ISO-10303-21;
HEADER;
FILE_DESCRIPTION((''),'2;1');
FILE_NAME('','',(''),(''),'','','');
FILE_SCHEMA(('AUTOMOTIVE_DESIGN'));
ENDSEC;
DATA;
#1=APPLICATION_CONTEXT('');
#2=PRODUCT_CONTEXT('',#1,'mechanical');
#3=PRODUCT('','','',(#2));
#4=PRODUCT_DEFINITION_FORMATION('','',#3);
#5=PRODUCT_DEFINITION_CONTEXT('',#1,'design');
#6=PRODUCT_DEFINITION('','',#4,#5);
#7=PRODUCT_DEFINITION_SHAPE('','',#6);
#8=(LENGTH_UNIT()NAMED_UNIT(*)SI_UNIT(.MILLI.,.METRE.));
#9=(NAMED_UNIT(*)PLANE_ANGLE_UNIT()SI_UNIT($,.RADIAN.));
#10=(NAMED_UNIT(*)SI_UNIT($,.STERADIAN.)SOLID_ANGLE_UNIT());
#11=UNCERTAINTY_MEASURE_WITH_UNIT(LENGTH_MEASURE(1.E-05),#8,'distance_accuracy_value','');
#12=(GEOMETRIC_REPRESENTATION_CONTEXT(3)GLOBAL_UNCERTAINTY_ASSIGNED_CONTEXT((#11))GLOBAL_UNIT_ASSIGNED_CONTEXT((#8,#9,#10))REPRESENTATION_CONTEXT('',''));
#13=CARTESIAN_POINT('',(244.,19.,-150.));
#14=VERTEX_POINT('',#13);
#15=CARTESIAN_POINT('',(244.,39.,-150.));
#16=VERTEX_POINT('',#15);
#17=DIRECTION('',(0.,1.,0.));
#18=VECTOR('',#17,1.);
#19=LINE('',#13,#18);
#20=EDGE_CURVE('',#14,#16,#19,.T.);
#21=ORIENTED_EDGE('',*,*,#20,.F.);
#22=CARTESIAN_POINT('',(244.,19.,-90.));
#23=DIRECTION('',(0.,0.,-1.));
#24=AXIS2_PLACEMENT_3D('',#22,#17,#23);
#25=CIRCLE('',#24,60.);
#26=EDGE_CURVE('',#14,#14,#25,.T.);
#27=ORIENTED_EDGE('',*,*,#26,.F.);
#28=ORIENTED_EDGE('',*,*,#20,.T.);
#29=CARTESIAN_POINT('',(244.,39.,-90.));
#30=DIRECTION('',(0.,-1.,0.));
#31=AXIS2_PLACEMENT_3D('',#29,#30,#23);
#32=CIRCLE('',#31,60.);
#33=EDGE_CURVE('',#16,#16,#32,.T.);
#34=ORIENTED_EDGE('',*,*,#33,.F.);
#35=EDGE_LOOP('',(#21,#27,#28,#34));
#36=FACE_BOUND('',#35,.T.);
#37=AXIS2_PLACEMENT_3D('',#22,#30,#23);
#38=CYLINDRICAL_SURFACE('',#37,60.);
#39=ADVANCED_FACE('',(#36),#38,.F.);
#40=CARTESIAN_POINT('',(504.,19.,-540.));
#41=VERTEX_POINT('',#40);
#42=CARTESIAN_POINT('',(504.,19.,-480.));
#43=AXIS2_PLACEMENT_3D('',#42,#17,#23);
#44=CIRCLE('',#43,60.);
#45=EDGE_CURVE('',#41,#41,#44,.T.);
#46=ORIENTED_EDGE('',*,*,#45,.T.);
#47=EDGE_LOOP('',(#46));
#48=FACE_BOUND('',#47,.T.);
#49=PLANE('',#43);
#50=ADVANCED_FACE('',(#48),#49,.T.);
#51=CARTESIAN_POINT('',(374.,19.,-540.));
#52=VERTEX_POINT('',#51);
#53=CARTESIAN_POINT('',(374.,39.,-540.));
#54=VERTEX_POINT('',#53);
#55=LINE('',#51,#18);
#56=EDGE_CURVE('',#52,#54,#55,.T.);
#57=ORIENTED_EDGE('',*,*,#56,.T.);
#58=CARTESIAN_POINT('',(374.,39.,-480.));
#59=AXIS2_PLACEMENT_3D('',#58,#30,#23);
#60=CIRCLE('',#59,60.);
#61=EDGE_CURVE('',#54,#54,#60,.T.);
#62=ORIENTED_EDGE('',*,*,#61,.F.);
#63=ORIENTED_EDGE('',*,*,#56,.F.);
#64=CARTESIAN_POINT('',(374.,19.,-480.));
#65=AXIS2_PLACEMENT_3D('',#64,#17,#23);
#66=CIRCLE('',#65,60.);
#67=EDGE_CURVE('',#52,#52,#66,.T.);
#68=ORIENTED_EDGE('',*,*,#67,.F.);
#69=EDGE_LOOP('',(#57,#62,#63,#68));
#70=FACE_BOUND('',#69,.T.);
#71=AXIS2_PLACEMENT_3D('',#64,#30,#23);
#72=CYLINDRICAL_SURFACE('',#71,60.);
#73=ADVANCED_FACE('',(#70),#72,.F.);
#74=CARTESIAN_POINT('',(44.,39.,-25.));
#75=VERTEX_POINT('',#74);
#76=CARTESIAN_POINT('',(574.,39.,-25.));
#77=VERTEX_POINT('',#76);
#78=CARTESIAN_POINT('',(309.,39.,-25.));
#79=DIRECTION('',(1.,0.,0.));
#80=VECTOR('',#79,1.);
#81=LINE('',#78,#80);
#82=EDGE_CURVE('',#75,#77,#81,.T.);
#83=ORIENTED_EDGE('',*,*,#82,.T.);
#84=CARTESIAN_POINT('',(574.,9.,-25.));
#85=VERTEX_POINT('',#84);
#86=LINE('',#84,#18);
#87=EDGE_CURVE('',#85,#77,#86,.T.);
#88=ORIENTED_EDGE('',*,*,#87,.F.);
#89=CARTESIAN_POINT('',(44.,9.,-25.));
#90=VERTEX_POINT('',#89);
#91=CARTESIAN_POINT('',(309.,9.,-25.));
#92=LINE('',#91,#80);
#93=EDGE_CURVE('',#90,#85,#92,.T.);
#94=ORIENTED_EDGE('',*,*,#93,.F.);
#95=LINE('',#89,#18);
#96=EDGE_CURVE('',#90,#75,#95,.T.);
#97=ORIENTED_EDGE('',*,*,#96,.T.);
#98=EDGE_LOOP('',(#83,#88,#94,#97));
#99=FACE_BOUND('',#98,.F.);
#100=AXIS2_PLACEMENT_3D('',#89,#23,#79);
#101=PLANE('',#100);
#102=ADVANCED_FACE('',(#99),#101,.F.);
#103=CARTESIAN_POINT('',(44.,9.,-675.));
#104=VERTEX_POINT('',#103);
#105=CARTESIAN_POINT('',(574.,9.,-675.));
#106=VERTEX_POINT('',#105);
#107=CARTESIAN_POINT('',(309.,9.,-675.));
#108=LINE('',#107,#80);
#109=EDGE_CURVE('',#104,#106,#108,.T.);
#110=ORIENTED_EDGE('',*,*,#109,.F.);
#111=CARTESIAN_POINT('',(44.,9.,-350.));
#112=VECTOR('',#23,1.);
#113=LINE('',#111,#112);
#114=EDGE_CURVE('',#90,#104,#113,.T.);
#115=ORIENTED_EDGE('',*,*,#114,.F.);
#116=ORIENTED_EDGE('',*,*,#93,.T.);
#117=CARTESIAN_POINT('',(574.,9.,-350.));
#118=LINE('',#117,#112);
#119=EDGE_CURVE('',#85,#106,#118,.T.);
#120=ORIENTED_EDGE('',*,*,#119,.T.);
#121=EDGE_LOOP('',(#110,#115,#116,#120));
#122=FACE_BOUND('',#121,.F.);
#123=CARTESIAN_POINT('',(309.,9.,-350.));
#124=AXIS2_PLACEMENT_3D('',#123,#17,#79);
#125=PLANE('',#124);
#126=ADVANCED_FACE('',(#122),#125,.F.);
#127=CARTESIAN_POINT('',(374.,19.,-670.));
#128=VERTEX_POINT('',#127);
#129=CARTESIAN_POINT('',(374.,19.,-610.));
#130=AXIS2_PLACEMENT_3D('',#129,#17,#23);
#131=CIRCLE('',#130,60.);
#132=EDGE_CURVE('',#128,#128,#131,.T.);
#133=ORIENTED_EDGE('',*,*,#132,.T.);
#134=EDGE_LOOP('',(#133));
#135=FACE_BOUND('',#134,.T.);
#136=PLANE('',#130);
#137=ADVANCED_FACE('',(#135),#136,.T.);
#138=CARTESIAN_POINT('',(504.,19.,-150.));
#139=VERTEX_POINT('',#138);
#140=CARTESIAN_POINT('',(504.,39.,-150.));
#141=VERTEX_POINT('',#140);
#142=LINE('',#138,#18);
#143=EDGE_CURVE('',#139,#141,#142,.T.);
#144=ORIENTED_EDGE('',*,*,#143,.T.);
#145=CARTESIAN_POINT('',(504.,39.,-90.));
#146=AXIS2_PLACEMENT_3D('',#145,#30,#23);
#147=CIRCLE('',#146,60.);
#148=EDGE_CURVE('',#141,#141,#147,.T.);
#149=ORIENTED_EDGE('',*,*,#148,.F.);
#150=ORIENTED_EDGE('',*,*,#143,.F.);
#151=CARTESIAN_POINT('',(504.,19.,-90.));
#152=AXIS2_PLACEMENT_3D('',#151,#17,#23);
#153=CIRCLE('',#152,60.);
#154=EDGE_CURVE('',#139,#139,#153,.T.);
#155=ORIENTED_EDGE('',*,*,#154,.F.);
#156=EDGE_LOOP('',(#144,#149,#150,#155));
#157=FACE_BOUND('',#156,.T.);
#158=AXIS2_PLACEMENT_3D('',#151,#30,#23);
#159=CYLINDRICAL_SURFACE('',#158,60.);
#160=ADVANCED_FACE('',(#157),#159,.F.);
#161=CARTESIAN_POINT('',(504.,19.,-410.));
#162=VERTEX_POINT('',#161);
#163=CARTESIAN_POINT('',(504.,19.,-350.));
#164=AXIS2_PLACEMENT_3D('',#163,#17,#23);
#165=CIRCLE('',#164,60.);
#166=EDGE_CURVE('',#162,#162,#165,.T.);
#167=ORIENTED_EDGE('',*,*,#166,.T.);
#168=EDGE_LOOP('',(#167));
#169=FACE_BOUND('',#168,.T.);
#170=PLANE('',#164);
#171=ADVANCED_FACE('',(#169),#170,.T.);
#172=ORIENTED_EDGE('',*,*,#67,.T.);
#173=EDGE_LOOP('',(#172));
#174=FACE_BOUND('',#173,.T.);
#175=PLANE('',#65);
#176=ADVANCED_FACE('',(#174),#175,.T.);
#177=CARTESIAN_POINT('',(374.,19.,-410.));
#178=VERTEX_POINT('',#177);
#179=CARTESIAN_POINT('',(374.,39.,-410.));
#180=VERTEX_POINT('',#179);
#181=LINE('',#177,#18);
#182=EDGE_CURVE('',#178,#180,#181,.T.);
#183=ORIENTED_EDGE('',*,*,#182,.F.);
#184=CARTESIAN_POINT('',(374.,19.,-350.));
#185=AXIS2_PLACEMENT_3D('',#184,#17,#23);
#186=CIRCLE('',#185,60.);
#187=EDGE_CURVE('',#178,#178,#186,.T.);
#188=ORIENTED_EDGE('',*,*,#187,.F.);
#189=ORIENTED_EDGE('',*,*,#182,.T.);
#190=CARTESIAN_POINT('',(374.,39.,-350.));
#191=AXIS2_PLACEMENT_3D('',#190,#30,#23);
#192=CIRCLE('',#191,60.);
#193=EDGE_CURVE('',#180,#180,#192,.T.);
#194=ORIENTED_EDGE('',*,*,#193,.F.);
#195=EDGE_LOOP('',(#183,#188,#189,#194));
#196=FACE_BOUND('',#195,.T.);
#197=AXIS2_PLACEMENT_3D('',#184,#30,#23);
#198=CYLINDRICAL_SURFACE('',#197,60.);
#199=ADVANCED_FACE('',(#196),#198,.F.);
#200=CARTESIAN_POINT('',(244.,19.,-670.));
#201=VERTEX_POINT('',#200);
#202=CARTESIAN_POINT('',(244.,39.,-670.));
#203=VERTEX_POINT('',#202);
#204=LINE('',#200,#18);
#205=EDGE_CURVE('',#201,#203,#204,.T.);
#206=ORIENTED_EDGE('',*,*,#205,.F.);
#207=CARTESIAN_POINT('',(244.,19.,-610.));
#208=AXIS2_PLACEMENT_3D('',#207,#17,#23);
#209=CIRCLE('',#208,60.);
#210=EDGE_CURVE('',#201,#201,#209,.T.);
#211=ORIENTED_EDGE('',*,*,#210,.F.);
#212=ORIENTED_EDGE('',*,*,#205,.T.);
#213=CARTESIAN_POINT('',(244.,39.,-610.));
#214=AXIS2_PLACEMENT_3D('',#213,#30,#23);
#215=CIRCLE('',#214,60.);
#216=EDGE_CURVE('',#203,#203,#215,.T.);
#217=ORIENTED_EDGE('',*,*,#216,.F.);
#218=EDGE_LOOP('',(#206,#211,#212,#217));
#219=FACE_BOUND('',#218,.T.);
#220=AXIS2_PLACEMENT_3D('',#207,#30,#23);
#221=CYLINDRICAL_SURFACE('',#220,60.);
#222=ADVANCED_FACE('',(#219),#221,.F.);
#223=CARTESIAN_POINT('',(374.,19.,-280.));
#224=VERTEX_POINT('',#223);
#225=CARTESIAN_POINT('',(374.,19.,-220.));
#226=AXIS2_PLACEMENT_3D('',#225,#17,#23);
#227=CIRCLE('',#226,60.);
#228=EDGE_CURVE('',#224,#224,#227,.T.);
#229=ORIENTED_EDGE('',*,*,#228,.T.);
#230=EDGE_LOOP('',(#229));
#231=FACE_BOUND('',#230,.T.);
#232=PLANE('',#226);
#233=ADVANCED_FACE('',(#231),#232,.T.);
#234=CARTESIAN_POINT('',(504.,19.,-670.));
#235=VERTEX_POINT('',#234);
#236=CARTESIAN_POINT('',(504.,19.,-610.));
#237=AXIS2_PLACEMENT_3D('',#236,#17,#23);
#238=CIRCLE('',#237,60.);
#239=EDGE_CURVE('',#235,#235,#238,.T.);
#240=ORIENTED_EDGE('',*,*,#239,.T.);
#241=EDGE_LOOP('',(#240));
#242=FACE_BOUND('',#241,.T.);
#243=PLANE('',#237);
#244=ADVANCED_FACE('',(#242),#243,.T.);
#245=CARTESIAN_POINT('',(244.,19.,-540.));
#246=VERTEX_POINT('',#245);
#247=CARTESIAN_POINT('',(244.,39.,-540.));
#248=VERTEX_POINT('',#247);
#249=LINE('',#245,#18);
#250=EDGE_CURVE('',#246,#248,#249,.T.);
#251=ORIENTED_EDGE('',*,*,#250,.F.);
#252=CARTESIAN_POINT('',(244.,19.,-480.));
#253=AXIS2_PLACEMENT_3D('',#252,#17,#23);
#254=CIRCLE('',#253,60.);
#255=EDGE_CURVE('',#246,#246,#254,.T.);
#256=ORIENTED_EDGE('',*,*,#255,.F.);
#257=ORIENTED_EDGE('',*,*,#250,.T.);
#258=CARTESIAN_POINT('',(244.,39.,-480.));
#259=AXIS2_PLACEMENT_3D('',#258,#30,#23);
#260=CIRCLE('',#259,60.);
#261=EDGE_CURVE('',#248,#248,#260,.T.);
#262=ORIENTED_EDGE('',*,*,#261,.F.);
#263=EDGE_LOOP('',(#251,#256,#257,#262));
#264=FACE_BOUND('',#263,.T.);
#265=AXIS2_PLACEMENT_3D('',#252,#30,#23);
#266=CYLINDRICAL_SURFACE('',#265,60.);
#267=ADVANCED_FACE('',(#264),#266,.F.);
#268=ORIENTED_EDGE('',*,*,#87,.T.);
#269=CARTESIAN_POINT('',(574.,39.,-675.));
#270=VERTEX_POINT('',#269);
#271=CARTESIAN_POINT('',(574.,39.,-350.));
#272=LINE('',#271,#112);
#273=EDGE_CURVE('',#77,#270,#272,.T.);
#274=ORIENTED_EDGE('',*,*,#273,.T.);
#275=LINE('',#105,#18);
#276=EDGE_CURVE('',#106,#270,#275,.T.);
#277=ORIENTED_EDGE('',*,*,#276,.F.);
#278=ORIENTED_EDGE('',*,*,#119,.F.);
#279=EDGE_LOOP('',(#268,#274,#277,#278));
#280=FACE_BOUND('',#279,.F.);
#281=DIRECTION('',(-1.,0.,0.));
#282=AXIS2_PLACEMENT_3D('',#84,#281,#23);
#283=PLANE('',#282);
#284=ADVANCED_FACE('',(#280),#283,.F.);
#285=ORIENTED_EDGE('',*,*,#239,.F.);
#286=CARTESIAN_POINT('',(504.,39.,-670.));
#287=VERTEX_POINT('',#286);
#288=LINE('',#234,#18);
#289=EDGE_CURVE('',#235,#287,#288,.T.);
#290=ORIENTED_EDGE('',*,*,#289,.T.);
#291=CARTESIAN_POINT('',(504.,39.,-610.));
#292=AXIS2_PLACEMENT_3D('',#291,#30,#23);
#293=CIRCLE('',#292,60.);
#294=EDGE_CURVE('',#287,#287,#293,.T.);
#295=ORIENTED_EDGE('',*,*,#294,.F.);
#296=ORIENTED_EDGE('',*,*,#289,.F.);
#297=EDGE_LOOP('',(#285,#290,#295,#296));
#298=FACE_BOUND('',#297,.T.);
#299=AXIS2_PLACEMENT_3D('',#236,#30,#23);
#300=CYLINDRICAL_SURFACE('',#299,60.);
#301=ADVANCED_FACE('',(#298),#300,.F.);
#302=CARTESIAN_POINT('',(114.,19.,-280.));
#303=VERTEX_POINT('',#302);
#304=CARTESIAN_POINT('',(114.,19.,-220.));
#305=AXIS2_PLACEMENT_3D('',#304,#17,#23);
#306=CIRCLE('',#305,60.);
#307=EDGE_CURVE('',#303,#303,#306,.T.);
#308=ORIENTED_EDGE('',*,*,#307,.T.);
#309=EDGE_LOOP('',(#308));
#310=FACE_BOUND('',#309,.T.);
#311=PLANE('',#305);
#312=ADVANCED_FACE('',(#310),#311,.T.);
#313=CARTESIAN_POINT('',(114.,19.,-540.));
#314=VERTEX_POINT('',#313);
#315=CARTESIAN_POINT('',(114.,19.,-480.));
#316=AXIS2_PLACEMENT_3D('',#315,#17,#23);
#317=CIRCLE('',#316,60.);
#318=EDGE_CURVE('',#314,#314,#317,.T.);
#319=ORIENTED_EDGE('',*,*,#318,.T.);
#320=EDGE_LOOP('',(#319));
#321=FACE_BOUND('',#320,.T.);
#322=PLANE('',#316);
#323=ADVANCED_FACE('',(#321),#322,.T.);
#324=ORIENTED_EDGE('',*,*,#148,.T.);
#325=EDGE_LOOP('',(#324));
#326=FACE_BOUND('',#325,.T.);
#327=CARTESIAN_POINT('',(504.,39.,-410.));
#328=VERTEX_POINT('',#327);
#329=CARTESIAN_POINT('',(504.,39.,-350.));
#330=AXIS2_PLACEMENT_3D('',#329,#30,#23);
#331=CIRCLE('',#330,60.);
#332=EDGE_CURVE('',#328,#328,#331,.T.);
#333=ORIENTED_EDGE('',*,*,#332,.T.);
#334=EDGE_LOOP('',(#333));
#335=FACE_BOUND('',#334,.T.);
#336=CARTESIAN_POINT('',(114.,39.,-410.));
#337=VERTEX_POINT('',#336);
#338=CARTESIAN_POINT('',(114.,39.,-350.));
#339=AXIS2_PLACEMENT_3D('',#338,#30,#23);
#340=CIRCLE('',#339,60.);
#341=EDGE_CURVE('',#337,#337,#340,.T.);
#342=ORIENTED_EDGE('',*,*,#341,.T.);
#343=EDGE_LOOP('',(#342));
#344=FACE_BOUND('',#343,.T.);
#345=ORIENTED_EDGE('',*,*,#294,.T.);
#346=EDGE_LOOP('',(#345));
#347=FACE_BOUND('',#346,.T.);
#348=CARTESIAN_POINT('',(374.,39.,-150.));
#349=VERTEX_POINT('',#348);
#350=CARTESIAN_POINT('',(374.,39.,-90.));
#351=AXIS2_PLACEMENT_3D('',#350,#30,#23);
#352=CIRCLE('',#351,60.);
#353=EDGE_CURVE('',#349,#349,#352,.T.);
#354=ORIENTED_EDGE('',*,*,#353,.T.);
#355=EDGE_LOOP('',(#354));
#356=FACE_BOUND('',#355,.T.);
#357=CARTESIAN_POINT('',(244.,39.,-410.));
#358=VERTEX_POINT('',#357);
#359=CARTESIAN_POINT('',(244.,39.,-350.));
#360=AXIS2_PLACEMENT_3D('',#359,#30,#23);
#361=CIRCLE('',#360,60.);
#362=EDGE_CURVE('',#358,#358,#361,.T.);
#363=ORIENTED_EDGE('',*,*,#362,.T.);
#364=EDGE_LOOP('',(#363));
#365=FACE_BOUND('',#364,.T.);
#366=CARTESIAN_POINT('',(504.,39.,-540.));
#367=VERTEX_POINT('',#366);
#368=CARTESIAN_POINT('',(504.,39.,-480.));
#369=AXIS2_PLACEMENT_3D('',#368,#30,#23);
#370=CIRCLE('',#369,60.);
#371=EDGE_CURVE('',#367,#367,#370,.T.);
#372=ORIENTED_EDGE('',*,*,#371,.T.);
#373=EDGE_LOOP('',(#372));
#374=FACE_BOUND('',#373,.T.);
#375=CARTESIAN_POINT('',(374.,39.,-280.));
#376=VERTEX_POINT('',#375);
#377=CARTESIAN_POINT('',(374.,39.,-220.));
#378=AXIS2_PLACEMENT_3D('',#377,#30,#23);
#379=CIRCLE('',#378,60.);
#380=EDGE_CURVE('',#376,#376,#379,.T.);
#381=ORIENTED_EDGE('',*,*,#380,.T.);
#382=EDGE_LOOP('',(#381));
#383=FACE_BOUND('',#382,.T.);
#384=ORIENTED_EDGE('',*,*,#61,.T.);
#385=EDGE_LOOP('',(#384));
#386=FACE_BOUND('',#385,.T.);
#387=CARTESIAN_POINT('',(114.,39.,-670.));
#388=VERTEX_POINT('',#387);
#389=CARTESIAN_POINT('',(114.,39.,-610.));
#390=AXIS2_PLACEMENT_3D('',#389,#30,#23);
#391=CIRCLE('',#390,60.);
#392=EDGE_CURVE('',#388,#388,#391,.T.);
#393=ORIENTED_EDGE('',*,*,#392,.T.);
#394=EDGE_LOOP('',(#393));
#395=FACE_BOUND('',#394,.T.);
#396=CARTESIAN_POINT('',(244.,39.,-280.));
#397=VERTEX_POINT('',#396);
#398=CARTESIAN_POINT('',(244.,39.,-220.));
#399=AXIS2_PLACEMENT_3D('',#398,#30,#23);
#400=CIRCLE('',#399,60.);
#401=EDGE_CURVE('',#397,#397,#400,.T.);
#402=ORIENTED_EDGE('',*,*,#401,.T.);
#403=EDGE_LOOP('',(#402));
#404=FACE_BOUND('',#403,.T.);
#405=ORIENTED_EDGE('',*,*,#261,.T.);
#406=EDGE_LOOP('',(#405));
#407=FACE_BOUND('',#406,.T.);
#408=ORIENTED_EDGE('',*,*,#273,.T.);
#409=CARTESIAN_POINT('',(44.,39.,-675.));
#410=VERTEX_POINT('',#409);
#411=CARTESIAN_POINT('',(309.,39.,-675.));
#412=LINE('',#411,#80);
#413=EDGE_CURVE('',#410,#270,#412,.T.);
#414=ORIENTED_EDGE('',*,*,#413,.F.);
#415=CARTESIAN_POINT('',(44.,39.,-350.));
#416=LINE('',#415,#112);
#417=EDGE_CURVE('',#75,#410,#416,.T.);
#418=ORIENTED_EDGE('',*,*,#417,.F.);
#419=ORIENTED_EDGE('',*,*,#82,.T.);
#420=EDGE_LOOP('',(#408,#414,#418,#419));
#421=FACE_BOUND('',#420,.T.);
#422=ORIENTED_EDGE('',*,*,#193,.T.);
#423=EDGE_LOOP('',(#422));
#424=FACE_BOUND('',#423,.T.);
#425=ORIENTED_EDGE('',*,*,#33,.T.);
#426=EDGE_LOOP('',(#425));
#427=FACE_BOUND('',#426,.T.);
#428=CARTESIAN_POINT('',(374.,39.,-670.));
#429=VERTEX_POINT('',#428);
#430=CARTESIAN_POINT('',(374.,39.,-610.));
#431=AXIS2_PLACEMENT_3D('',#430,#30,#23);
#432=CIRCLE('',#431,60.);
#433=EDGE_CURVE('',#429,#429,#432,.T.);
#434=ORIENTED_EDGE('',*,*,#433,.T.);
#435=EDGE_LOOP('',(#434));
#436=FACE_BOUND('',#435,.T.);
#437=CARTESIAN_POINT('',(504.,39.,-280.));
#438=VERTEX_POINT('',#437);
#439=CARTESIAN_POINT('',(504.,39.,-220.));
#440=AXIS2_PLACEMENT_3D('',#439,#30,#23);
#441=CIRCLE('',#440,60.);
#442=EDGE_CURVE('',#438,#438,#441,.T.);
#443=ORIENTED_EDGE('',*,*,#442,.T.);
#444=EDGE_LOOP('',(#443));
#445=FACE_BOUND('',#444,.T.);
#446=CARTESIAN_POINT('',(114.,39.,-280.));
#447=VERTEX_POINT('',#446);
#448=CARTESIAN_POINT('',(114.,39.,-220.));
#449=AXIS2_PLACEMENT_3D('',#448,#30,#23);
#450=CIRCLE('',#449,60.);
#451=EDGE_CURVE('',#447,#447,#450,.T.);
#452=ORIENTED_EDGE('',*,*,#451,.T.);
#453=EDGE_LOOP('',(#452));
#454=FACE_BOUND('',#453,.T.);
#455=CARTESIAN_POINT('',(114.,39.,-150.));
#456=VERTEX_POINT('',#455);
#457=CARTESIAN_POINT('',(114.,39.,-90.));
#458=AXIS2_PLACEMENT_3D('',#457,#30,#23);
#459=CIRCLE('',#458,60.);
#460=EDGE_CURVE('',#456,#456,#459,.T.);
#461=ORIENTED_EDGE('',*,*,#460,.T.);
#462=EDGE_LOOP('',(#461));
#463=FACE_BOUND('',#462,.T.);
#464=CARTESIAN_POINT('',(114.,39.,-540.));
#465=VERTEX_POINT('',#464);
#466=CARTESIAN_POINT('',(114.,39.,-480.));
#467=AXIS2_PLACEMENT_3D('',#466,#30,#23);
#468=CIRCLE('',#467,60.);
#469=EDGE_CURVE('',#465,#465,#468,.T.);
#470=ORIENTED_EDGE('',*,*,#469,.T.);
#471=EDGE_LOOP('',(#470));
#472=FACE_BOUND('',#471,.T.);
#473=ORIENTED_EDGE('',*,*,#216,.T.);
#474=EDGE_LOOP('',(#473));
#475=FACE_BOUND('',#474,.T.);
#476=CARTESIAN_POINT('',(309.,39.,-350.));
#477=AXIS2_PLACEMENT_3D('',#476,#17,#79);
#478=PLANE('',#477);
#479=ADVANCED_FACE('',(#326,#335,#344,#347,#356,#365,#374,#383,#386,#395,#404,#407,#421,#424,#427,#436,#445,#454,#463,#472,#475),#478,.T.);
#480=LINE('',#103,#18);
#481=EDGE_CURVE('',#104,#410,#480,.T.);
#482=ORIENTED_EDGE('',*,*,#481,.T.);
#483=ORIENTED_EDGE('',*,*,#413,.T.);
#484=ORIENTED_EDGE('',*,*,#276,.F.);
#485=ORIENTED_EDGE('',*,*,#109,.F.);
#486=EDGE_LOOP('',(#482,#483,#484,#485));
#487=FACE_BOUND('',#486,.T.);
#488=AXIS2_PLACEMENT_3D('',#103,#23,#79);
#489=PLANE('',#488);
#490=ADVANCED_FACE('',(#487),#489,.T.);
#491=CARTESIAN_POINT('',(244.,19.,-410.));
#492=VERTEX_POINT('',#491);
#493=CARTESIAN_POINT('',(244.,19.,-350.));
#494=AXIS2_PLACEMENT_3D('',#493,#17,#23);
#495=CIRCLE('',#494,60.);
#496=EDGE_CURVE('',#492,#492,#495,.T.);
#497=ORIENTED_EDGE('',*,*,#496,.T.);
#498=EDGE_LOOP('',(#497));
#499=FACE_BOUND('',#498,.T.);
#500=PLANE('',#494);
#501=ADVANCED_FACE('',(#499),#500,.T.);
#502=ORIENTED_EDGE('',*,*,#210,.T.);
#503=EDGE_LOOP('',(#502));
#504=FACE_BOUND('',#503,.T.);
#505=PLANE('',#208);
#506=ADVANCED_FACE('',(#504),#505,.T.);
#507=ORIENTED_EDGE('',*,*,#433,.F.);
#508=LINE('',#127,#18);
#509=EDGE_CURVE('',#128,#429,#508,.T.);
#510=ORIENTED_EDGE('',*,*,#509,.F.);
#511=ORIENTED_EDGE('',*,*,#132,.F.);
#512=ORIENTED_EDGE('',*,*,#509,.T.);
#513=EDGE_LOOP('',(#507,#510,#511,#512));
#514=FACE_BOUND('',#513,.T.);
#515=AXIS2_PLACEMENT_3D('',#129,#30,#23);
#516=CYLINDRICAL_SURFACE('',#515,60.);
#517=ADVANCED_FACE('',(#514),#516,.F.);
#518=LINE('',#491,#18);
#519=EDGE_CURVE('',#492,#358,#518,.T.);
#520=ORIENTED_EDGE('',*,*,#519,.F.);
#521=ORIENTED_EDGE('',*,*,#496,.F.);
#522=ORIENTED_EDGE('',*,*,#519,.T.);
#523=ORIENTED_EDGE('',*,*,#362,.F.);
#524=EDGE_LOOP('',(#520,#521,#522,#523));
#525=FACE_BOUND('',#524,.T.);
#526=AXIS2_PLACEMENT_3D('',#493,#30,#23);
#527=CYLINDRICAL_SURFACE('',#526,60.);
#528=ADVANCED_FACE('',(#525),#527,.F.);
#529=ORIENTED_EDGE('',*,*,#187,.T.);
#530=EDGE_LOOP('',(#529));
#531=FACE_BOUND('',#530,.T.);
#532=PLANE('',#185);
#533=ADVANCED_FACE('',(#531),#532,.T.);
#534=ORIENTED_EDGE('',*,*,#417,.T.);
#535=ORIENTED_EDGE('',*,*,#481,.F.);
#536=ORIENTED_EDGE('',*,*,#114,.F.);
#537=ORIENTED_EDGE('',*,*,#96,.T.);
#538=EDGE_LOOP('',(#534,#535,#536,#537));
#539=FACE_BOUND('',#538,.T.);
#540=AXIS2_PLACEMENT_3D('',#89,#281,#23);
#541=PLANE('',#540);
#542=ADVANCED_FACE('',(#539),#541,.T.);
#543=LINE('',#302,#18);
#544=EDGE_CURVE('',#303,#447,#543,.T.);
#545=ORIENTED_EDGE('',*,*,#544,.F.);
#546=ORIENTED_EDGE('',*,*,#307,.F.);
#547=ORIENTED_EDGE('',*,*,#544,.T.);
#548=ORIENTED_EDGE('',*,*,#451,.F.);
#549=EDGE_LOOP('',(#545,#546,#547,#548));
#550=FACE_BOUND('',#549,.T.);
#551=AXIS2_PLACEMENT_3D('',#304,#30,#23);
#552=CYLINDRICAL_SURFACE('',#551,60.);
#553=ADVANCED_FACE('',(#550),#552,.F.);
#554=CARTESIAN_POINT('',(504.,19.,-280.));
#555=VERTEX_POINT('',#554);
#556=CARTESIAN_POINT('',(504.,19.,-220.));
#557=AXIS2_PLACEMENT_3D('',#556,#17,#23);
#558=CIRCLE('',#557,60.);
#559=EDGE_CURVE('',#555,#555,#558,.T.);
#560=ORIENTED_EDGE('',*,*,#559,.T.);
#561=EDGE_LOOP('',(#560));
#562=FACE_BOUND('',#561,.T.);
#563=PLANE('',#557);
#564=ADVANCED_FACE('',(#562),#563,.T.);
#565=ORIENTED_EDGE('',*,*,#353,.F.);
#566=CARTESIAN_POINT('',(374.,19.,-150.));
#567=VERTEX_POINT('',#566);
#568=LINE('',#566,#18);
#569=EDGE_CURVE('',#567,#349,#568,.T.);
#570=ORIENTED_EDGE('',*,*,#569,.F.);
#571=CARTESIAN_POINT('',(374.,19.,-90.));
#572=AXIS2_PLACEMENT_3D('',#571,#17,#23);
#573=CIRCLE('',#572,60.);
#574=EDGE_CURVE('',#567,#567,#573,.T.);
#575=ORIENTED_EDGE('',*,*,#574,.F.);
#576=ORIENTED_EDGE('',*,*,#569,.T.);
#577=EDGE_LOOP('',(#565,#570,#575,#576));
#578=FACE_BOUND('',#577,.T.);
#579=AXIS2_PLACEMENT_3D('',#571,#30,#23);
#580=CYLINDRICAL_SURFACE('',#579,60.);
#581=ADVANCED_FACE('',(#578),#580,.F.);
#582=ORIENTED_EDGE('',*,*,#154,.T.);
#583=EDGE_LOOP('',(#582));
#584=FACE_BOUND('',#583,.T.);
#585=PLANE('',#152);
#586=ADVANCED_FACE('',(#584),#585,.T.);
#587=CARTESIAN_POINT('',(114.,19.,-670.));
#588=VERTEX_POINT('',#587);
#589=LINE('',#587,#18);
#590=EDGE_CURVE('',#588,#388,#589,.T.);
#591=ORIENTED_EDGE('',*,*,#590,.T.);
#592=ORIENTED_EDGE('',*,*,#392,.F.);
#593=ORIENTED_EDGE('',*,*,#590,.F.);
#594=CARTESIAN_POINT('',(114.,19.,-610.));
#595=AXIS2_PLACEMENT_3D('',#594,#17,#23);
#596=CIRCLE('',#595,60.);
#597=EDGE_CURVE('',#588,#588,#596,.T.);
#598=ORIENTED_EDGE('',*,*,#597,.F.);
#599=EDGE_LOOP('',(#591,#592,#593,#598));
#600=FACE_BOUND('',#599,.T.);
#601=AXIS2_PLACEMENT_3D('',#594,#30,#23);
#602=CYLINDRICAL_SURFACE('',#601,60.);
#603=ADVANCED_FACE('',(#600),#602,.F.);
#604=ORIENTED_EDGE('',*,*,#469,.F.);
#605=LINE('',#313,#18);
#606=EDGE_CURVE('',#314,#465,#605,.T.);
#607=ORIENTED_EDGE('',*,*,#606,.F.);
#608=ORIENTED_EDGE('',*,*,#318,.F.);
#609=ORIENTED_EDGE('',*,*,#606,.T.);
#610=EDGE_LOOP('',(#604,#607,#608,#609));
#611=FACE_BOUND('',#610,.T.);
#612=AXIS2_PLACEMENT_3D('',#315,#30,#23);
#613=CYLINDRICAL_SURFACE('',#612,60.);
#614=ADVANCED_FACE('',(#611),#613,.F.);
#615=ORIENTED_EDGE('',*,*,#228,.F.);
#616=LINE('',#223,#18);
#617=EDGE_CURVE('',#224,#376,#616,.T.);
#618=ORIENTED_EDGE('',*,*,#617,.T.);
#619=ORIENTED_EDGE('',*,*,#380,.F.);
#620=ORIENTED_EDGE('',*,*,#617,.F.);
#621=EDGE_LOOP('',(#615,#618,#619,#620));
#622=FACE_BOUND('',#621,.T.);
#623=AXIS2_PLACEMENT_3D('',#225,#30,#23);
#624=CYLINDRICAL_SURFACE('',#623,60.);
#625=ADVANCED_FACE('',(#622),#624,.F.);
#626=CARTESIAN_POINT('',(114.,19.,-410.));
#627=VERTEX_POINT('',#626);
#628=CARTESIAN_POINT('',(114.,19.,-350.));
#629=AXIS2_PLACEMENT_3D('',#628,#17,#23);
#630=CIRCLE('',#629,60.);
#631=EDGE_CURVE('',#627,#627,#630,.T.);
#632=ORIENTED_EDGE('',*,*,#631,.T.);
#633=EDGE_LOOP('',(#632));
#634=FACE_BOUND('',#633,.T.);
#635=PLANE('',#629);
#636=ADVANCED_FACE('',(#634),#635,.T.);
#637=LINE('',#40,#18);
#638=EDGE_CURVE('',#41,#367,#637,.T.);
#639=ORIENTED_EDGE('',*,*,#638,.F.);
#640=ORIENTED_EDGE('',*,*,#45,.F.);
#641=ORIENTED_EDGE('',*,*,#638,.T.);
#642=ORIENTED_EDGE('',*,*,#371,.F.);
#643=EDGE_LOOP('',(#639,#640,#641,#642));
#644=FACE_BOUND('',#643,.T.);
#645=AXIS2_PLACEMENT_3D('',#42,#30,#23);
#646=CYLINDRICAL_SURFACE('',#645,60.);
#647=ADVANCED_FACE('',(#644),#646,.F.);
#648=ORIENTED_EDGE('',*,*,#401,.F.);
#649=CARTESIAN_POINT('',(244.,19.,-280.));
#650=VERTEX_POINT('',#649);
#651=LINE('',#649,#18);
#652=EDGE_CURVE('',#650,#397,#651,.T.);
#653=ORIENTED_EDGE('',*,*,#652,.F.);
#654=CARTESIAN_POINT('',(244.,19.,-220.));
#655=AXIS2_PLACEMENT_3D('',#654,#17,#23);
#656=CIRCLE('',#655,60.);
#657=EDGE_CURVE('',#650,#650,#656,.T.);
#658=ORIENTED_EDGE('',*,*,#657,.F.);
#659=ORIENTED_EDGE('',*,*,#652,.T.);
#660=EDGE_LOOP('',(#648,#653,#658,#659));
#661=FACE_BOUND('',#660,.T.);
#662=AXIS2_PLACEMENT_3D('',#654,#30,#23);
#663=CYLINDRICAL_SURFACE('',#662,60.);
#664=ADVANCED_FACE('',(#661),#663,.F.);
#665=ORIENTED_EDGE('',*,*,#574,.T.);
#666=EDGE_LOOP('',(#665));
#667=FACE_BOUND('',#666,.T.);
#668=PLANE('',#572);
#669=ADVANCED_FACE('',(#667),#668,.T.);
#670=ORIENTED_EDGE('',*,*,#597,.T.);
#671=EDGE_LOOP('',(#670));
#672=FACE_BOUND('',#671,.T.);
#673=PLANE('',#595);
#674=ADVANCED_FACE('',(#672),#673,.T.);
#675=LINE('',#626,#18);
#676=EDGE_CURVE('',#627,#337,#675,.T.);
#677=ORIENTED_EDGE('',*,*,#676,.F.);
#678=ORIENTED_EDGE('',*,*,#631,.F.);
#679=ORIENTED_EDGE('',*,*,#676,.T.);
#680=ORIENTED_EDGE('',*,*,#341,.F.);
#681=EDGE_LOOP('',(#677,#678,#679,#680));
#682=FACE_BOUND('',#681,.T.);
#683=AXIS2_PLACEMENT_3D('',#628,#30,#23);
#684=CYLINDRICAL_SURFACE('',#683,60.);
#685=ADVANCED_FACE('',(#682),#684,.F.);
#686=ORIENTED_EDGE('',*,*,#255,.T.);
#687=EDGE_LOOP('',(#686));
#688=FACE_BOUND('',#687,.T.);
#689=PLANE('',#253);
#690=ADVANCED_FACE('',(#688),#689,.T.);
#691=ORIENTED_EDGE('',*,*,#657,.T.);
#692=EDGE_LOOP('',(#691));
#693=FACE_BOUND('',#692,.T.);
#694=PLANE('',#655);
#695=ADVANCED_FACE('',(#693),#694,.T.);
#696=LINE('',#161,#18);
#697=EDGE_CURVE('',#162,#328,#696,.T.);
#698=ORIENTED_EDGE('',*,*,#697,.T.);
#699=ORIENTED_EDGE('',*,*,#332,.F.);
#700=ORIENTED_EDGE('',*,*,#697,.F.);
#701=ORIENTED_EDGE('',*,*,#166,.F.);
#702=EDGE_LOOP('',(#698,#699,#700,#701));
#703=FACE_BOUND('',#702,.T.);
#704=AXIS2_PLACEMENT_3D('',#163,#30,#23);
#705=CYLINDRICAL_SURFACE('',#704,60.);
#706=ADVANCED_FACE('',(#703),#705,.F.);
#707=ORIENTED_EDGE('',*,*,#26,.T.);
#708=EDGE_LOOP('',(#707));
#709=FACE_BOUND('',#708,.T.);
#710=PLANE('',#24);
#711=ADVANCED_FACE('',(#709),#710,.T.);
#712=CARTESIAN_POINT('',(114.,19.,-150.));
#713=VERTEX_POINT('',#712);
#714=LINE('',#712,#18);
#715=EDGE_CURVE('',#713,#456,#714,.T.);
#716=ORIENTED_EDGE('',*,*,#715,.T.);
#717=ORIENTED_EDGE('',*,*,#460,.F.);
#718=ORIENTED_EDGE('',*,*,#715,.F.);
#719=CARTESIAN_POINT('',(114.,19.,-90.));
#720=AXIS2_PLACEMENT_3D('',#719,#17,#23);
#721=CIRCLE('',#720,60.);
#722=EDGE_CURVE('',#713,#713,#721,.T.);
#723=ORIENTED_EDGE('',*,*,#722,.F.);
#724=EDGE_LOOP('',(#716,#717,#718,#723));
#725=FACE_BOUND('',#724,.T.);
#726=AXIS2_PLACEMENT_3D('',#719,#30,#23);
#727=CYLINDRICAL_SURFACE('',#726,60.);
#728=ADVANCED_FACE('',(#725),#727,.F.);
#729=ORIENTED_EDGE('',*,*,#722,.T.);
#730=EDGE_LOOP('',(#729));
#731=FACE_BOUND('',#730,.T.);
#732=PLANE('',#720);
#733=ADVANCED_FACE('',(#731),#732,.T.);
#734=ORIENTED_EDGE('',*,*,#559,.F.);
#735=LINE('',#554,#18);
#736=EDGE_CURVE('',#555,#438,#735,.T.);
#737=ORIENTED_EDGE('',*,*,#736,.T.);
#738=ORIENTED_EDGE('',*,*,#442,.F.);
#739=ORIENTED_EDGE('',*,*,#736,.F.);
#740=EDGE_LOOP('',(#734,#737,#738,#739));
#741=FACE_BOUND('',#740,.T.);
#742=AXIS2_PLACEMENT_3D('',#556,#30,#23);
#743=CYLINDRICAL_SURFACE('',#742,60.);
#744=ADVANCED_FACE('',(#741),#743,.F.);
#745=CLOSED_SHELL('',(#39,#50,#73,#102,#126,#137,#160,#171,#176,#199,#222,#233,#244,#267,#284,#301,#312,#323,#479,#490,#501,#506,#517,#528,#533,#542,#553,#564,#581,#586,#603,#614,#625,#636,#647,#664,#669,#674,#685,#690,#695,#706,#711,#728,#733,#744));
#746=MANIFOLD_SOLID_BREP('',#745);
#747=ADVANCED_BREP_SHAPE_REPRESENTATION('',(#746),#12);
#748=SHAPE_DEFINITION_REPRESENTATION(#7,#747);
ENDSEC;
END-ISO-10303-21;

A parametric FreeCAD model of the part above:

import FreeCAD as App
import Part
import Sketcher

V = App.Vector

doc = App.newDocument("Part")
params = doc.addObject("Spreadsheet::Sheet", "Params")
for row, (alias, value) in enumerate([
    ("sketch1_width", "530 mm"),
    ("sketch1_height", "650 mm"),
    ("pad1_length", "30 mm"),
    ("sketch2_diameter", "120 mm"),
    ("pocket1_length", "21 mm"),
    ("sketch3_diameter", "120 mm"),
    ("pocket2_length", "21 mm"),
    ("sketch4_diameter", "120 mm"),
    ("pocket3_length", "21 mm"),
    ("sketch5_diameter", "120 mm"),
    ("pocket4_length", "21 mm"),
    ("sketch6_diameter", "120 mm"),
    ("pocket5_length", "21 mm"),
    ("sketch7_diameter", "120 mm"),
    ("pocket6_length", "21 mm"),
    ("sketch8_diameter", "120 mm"),
    ("pocket7_length", "21 mm"),
    ("sketch9_diameter", "120 mm"),
    ("pocket8_length", "21 mm"),
    ("sketch10_diameter", "120 mm"),
    ("pocket9_length", "21 mm"),
    ("sketch11_diameter", "120 mm"),
    ("pocket10_length", "21 mm"),
    ("sketch12_diameter", "120 mm"),
    ("pocket11_length", "21 mm"),
    ("sketch13_diameter", "120 mm"),
    ("pocket12_length", "21 mm"),
    ("sketch14_diameter", "120 mm"),
    ("pocket13_length", "21 mm"),
    ("sketch15_diameter", "120 mm"),
    ("pocket14_length", "21 mm"),
    ("sketch16_diameter", "120 mm"),
    ("pocket15_length", "21 mm"),
    ("sketch17_diameter", "120 mm"),
    ("pocket16_length", "21 mm"),
    ("sketch18_diameter", "120 mm"),
    ("pocket17_length", "21 mm"),
    ("sketch19_diameter", "120 mm"),
    ("pocket18_length", "21 mm"),
    ("sketch20_diameter", "120 mm"),
    ("pocket19_length", "21 mm"),
    ("sketch21_diameter", "120 mm"),
    ("pocket20_length", "21 mm"),
], start=1):
    params.set(f"A{row}", alias)
    params.set(f"B{row}", "=" + value)
    params.setAlias(f"B{row}", alias)

body = doc.addObject("PartDesign::Body", "Body")

# Sketch on XZ plane
sketch1 = doc.addObject("Sketcher::SketchObject", "Sketch")
body.addObject(sketch1)
sketch1.AttachmentSupport = (doc.XZ_Plane, [""])
sketch1.MapMode = "FlatFace"
sketch1.AttachmentOffset = App.Placement(V(0, 0, -9), App.Rotation())
sketch1.addGeometry([
    Part.LineSegment(V(44, -675, 0), V(44, -25, 0)),
    Part.LineSegment(V(44, -25, 0), V(574, -25, 0)),
    Part.LineSegment(V(574, -25, 0), V(574, -675, 0)),
    Part.LineSegment(V(574, -675, 0), V(44, -675, 0)),
], False)
sketch1.addConstraint([
    Sketcher.Constraint("Coincident", 0, 2, 1, 1),
    Sketcher.Constraint("Coincident", 1, 2, 2, 1),
    Sketcher.Constraint("Coincident", 2, 2, 3, 1),
    Sketcher.Constraint("Coincident", 3, 2, 0, 1),
    Sketcher.Constraint("Vertical", 0),
    Sketcher.Constraint("Horizontal", 1),
    Sketcher.Constraint("Vertical", 2),
    Sketcher.Constraint("Horizontal", 3),
    Sketcher.Constraint("DistanceX", 1, 1, 1, 2, 530.0),
    Sketcher.Constraint("DistanceY", 0, 1, 0, 2, 650.0),
    Sketcher.Constraint("DistanceX", -1, 1, 0, 2, 44.0),
    Sketcher.Constraint("DistanceY", 0, 2, -1, 1, 25.0),
])
sketch1.setExpression("Constraints[8]", "Params.sketch1_width")
sketch1.setExpression("Constraints[9]", "Params.sketch1_height")
pad1 = doc.addObject("PartDesign::Pad", "Pad")
body.addObject(pad1)
pad1.Profile = sketch1
pad1.setExpression("Length", "Params.pad1_length")
pad1.Reversed = True

# Sketch on XZ plane
sketch2 = doc.addObject("Sketcher::SketchObject", "Sketch001")
body.addObject(sketch2)
sketch2.AttachmentSupport = (doc.XZ_Plane, [""])
sketch2.MapMode = "FlatFace"
sketch2.AttachmentOffset = App.Placement(V(0, 0, -19), App.Rotation())
sketch2.addGeometry(Part.Circle(V(114, -610, 0), V(0, 0, 1), 60), False)
sketch2.addConstraint([
    Sketcher.Constraint("Diameter", 0, 120.0),
    Sketcher.Constraint("DistanceX", -1, 1, 0, 3, 114.0),
    Sketcher.Constraint("DistanceY", 0, 3, -1, 1, 610.0),
])
sketch2.setExpression("Constraints[0]", "Params.sketch2_diameter")
pocket1 = doc.addObject("PartDesign::Pocket", "Pocket")
body.addObject(pocket1)
pocket1.Profile = sketch2
pocket1.setExpression("Length", "Params.pocket1_length")

# Sketch on XZ plane
sketch3 = doc.addObject("Sketcher::SketchObject", "Sketch002")
body.addObject(sketch3)
sketch3.AttachmentSupport = (doc.XZ_Plane, [""])
sketch3.MapMode = "FlatFace"
sketch3.AttachmentOffset = App.Placement(V(0, 0, -19), App.Rotation())
sketch3.addGeometry(Part.Circle(V(114, -480, 0), V(0, 0, 1), 60), False)
sketch3.addConstraint([
    Sketcher.Constraint("Diameter", 0, 120.0),
    Sketcher.Constraint("DistanceX", -1, 1, 0, 3, 114.0),
    Sketcher.Constraint("DistanceY", 0, 3, -1, 1, 480.0),
])
sketch3.setExpression("Constraints[0]", "Params.sketch3_diameter")
pocket2 = doc.addObject("PartDesign::Pocket", "Pocket001")
body.addObject(pocket2)
pocket2.Profile = sketch3
pocket2.setExpression("Length", "Params.pocket2_length")

# Sketch on XZ plane
sketch4 = doc.addObject("Sketcher::SketchObject", "Sketch003")
body.addObject(sketch4)
sketch4.AttachmentSupport = (doc.XZ_Plane, [""])
sketch4.MapMode = "FlatFace"
sketch4.AttachmentOffset = App.Placement(V(0, 0, -19), App.Rotation())
sketch4.addGeometry(Part.Circle(V(114, -350, 0), V(0, 0, 1), 60), False)
sketch4.addConstraint([
    Sketcher.Constraint("Diameter", 0, 120.0),
    Sketcher.Constraint("DistanceX", -1, 1, 0, 3, 114.0),
    Sketcher.Constraint("DistanceY", 0, 3, -1, 1, 350.0),
])
sketch4.setExpression("Constraints[0]", "Params.sketch4_diameter")
pocket3 = doc.addObject("PartDesign::Pocket", "Pocket002")
body.addObject(pocket3)
pocket3.Profile = sketch4
pocket3.setExpression("Length", "Params.pocket3_length")

# Sketch on XZ plane
sketch5 = doc.addObject("Sketcher::SketchObject", "Sketch004")
body.addObject(sketch5)
sketch5.AttachmentSupport = (doc.XZ_Plane, [""])
sketch5.MapMode = "FlatFace"
sketch5.AttachmentOffset = App.Placement(V(0, 0, -19), App.Rotation())
sketch5.addGeometry(Part.Circle(V(114, -220, 0), V(0, 0, 1), 60), False)
sketch5.addConstraint([
    Sketcher.Constraint("Diameter", 0, 120.0),
    Sketcher.Constraint("DistanceX", -1, 1, 0, 3, 114.0),
    Sketcher.Constraint("DistanceY", 0, 3, -1, 1, 220.0),
])
sketch5.setExpression("Constraints[0]", "Params.sketch5_diameter")
pocket4 = doc.addObject("PartDesign::Pocket", "Pocket003")
body.addObject(pocket4)
pocket4.Profile = sketch5
pocket4.setExpression("Length", "Params.pocket4_length")

# Sketch on XZ plane
sketch6 = doc.addObject("Sketcher::SketchObject", "Sketch005")
body.addObject(sketch6)
sketch6.AttachmentSupport = (doc.XZ_Plane, [""])
sketch6.MapMode = "FlatFace"
sketch6.AttachmentOffset = App.Placement(V(0, 0, -19), App.Rotation())
sketch6.addGeometry(Part.Circle(V(114, -90, 0), V(0, 0, 1), 60), False)
sketch6.addConstraint([
    Sketcher.Constraint("Diameter", 0, 120.0),
    Sketcher.Constraint("DistanceX", -1, 1, 0, 3, 114.0),
    Sketcher.Constraint("DistanceY", 0, 3, -1, 1, 90.0),
])
sketch6.setExpression("Constraints[0]", "Params.sketch6_diameter")
pocket5 = doc.addObject("PartDesign::Pocket", "Pocket004")
body.addObject(pocket5)
pocket5.Profile = sketch6
pocket5.setExpression("Length", "Params.pocket5_length")

# Sketch on XZ plane
sketch7 = doc.addObject("Sketcher::SketchObject", "Sketch006")
body.addObject(sketch7)
sketch7.AttachmentSupport = (doc.XZ_Plane, [""])
sketch7.MapMode = "FlatFace"
sketch7.AttachmentOffset = App.Placement(V(0, 0, -19), App.Rotation())
sketch7.addGeometry(Part.Circle(V(244, -610, 0), V(0, 0, 1), 60), False)
sketch7.addConstraint([
    Sketcher.Constraint("Diameter", 0, 120.0),
    Sketcher.Constraint("DistanceX", -1, 1, 0, 3, 244.0),
    Sketcher.Constraint("DistanceY", 0, 3, -1, 1, 610.0),
])
sketch7.setExpression("Constraints[0]", "Params.sketch7_diameter")
pocket6 = doc.addObject("PartDesign::Pocket", "Pocket005")
body.addObject(pocket6)
pocket6.Profile = sketch7
pocket6.setExpression("Length", "Params.pocket6_length")

# Sketch on XZ plane
sketch8 = doc.addObject("Sketcher::SketchObject", "Sketch007")
body.addObject(sketch8)
sketch8.AttachmentSupport = (doc.XZ_Plane, [""])
sketch8.MapMode = "FlatFace"
sketch8.AttachmentOffset = App.Placement(V(0, 0, -19), App.Rotation())
sketch8.addGeometry(Part.Circle(V(244, -480, 0), V(0, 0, 1), 60), False)
sketch8.addConstraint([
    Sketcher.Constraint("Diameter", 0, 120.0),
    Sketcher.Constraint("DistanceX", -1, 1, 0, 3, 244.0),
    Sketcher.Constraint("DistanceY", 0, 3, -1, 1, 480.0),
])
sketch8.setExpression("Constraints[0]", "Params.sketch8_diameter")
pocket7 = doc.addObject("PartDesign::Pocket", "Pocket006")
body.addObject(pocket7)
pocket7.Profile = sketch8
pocket7.setExpression("Length", "Params.pocket7_length")

# Sketch on XZ plane
sketch9 = doc.addObject("Sketcher::SketchObject", "Sketch008")
body.addObject(sketch9)
sketch9.AttachmentSupport = (doc.XZ_Plane, [""])
sketch9.MapMode = "FlatFace"
sketch9.AttachmentOffset = App.Placement(V(0, 0, -19), App.Rotation())
sketch9.addGeometry(Part.Circle(V(244, -350, 0), V(0, 0, 1), 60), False)
sketch9.addConstraint([
    Sketcher.Constraint("Diameter", 0, 120.0),
    Sketcher.Constraint("DistanceX", -1, 1, 0, 3, 244.0),
    Sketcher.Constraint("DistanceY", 0, 3, -1, 1, 350.0),
])
sketch9.setExpression("Constraints[0]", "Params.sketch9_diameter")
pocket8 = doc.addObject("PartDesign::Pocket", "Pocket007")
body.addObject(pocket8)
pocket8.Profile = sketch9
pocket8.setExpression("Length", "Params.pocket8_length")

# Sketch on XZ plane
sketch10 = doc.addObject("Sketcher::SketchObject", "Sketch009")
body.addObject(sketch10)
sketch10.AttachmentSupport = (doc.XZ_Plane, [""])
sketch10.MapMode = "FlatFace"
sketch10.AttachmentOffset = App.Placement(V(0, 0, -19), App.Rotation())
sketch10.addGeometry(Part.Circle(V(244, -220, 0), V(0, 0, 1), 60), False)
sketch10.addConstraint([
    Sketcher.Constraint("Diameter", 0, 120.0),
    Sketcher.Constraint("DistanceX", -1, 1, 0, 3, 244.0),
    Sketcher.Constraint("DistanceY", 0, 3, -1, 1, 220.0),
])
sketch10.setExpression("Constraints[0]", "Params.sketch10_diameter")
pocket9 = doc.addObject("PartDesign::Pocket", "Pocket008")
body.addObject(pocket9)
pocket9.Profile = sketch10
pocket9.setExpression("Length", "Params.pocket9_length")

# Sketch on XZ plane
sketch11 = doc.addObject("Sketcher::SketchObject", "Sketch010")
body.addObject(sketch11)
sketch11.AttachmentSupport = (doc.XZ_Plane, [""])
sketch11.MapMode = "FlatFace"
sketch11.AttachmentOffset = App.Placement(V(0, 0, -19), App.Rotation())
sketch11.addGeometry(Part.Circle(V(244, -90, 0), V(0, 0, 1), 60), False)
sketch11.addConstraint([
    Sketcher.Constraint("Diameter", 0, 120.0),
    Sketcher.Constraint("DistanceX", -1, 1, 0, 3, 244.0),
    Sketcher.Constraint("DistanceY", 0, 3, -1, 1, 90.0),
])
sketch11.setExpression("Constraints[0]", "Params.sketch11_diameter")
pocket10 = doc.addObject("PartDesign::Pocket", "Pocket009")
body.addObject(pocket10)
pocket10.Profile = sketch11
pocket10.setExpression("Length", "Params.pocket10_length")

# Sketch on XZ plane
sketch12 = doc.addObject("Sketcher::SketchObject", "Sketch011")
body.addObject(sketch12)
sketch12.AttachmentSupport = (doc.XZ_Plane, [""])
sketch12.MapMode = "FlatFace"
sketch12.AttachmentOffset = App.Placement(V(0, 0, -19), App.Rotation())
sketch12.addGeometry(Part.Circle(V(374, -610, 0), V(0, 0, 1), 60), False)
sketch12.addConstraint([
    Sketcher.Constraint("Diameter", 0, 120.0),
    Sketcher.Constraint("DistanceX", -1, 1, 0, 3, 374.0),
    Sketcher.Constraint("DistanceY", 0, 3, -1, 1, 610.0),
])
sketch12.setExpression("Constraints[0]", "Params.sketch12_diameter")
pocket11 = doc.addObject("PartDesign::Pocket", "Pocket010")
body.addObject(pocket11)
pocket11.Profile = sketch12
pocket11.setExpression("Length", "Params.pocket11_length")

# Sketch on XZ plane
sketch13 = doc.addObject("Sketcher::SketchObject", "Sketch012")
body.addObject(sketch13)
sketch13.AttachmentSupport = (doc.XZ_Plane, [""])
sketch13.MapMode = "FlatFace"
sketch13.AttachmentOffset = App.Placement(V(0, 0, -19), App.Rotation())
sketch13.addGeometry(Part.Circle(V(374, -480, 0), V(0, 0, 1), 60), False)
sketch13.addConstraint([
    Sketcher.Constraint("Diameter", 0, 120.0),
    Sketcher.Constraint("DistanceX", -1, 1, 0, 3, 374.0),
    Sketcher.Constraint("DistanceY", 0, 3, -1, 1, 480.0),
])
sketch13.setExpression("Constraints[0]", "Params.sketch13_diameter")
pocket12 = doc.addObject("PartDesign::Pocket", "Pocket011")
body.addObject(pocket12)
pocket12.Profile = sketch13
pocket12.setExpression("Length", "Params.pocket12_length")

# Sketch on XZ plane
sketch14 = doc.addObject("Sketcher::SketchObject", "Sketch013")
body.addObject(sketch14)
sketch14.AttachmentSupport = (doc.XZ_Plane, [""])
sketch14.MapMode = "FlatFace"
sketch14.AttachmentOffset = App.Placement(V(0, 0, -19), App.Rotation())
sketch14.addGeometry(Part.Circle(V(374, -350, 0), V(0, 0, 1), 60), False)
sketch14.addConstraint([
    Sketcher.Constraint("Diameter", 0, 120.0),
    Sketcher.Constraint("DistanceX", -1, 1, 0, 3, 374.0),
    Sketcher.Constraint("DistanceY", 0, 3, -1, 1, 350.0),
])
sketch14.setExpression("Constraints[0]", "Params.sketch14_diameter")
pocket13 = doc.addObject("PartDesign::Pocket", "Pocket012")
body.addObject(pocket13)
pocket13.Profile = sketch14
pocket13.setExpression("Length", "Params.pocket13_length")

# Sketch on XZ plane
sketch15 = doc.addObject("Sketcher::SketchObject", "Sketch014")
body.addObject(sketch15)
sketch15.AttachmentSupport = (doc.XZ_Plane, [""])
sketch15.MapMode = "FlatFace"
sketch15.AttachmentOffset = App.Placement(V(0, 0, -19), App.Rotation())
sketch15.addGeometry(Part.Circle(V(374, -220, 0), V(0, 0, 1), 60), False)
sketch15.addConstraint([
    Sketcher.Constraint("Diameter", 0, 120.0),
    Sketcher.Constraint("DistanceX", -1, 1, 0, 3, 374.0),
    Sketcher.Constraint("DistanceY", 0, 3, -1, 1, 220.0),
])
sketch15.setExpression("Constraints[0]", "Params.sketch15_diameter")
pocket14 = doc.addObject("PartDesign::Pocket", "Pocket013")
body.addObject(pocket14)
pocket14.Profile = sketch15
pocket14.setExpression("Length", "Params.pocket14_length")

# Sketch on XZ plane
sketch16 = doc.addObject("Sketcher::SketchObject", "Sketch015")
body.addObject(sketch16)
sketch16.AttachmentSupport = (doc.XZ_Plane, [""])
sketch16.MapMode = "FlatFace"
sketch16.AttachmentOffset = App.Placement(V(0, 0, -19), App.Rotation())
sketch16.addGeometry(Part.Circle(V(374, -90, 0), V(0, 0, 1), 60), False)
sketch16.addConstraint([
    Sketcher.Constraint("Diameter", 0, 120.0),
    Sketcher.Constraint("DistanceX", -1, 1, 0, 3, 374.0),
    Sketcher.Constraint("DistanceY", 0, 3, -1, 1, 90.0),
])
sketch16.setExpression("Constraints[0]", "Params.sketch16_diameter")
pocket15 = doc.addObject("PartDesign::Pocket", "Pocket014")
body.addObject(pocket15)
pocket15.Profile = sketch16
pocket15.setExpression("Length", "Params.pocket15_length")

# Sketch on XZ plane
sketch17 = doc.addObject("Sketcher::SketchObject", "Sketch016")
body.addObject(sketch17)
sketch17.AttachmentSupport = (doc.XZ_Plane, [""])
sketch17.MapMode = "FlatFace"
sketch17.AttachmentOffset = App.Placement(V(0, 0, -19), App.Rotation())
sketch17.addGeometry(Part.Circle(V(504, -610, 0), V(0, 0, 1), 60), False)
sketch17.addConstraint([
    Sketcher.Constraint("Diameter", 0, 120.0),
    Sketcher.Constraint("DistanceX", -1, 1, 0, 3, 504.0),
    Sketcher.Constraint("DistanceY", 0, 3, -1, 1, 610.0),
])
sketch17.setExpression("Constraints[0]", "Params.sketch17_diameter")
pocket16 = doc.addObject("PartDesign::Pocket", "Pocket015")
body.addObject(pocket16)
pocket16.Profile = sketch17
pocket16.setExpression("Length", "Params.pocket16_length")

# Sketch on XZ plane
sketch18 = doc.addObject("Sketcher::SketchObject", "Sketch017")
body.addObject(sketch18)
sketch18.AttachmentSupport = (doc.XZ_Plane, [""])
sketch18.MapMode = "FlatFace"
sketch18.AttachmentOffset = App.Placement(V(0, 0, -19), App.Rotation())
sketch18.addGeometry(Part.Circle(V(504, -480, 0), V(0, 0, 1), 60), False)
sketch18.addConstraint([
    Sketcher.Constraint("Diameter", 0, 120.0),
    Sketcher.Constraint("DistanceX", -1, 1, 0, 3, 504.0),
    Sketcher.Constraint("DistanceY", 0, 3, -1, 1, 480.0),
])
sketch18.setExpression("Constraints[0]", "Params.sketch18_diameter")
pocket17 = doc.addObject("PartDesign::Pocket", "Pocket016")
body.addObject(pocket17)
pocket17.Profile = sketch18
pocket17.setExpression("Length", "Params.pocket17_length")

# Sketch on XZ plane
sketch19 = doc.addObject("Sketcher::SketchObject", "Sketch018")
body.addObject(sketch19)
sketch19.AttachmentSupport = (doc.XZ_Plane, [""])
sketch19.MapMode = "FlatFace"
sketch19.AttachmentOffset = App.Placement(V(0, 0, -19), App.Rotation())
sketch19.addGeometry(Part.Circle(V(504, -350, 0), V(0, 0, 1), 60), False)
sketch19.addConstraint([
    Sketcher.Constraint("Diameter", 0, 120.0),
    Sketcher.Constraint("DistanceX", -1, 1, 0, 3, 504.0),
    Sketcher.Constraint("DistanceY", 0, 3, -1, 1, 350.0),
])
sketch19.setExpression("Constraints[0]", "Params.sketch19_diameter")
pocket18 = doc.addObject("PartDesign::Pocket", "Pocket017")
body.addObject(pocket18)
pocket18.Profile = sketch19
pocket18.setExpression("Length", "Params.pocket18_length")

# Sketch on XZ plane
sketch20 = doc.addObject("Sketcher::SketchObject", "Sketch019")
body.addObject(sketch20)
sketch20.AttachmentSupport = (doc.XZ_Plane, [""])
sketch20.MapMode = "FlatFace"
sketch20.AttachmentOffset = App.Placement(V(0, 0, -19), App.Rotation())
sketch20.addGeometry(Part.Circle(V(504, -220, 0), V(0, 0, 1), 60), False)
sketch20.addConstraint([
    Sketcher.Constraint("Diameter", 0, 120.0),
    Sketcher.Constraint("DistanceX", -1, 1, 0, 3, 504.0),
    Sketcher.Constraint("DistanceY", 0, 3, -1, 1, 220.0),
])
sketch20.setExpression("Constraints[0]", "Params.sketch20_diameter")
pocket19 = doc.addObject("PartDesign::Pocket", "Pocket018")
body.addObject(pocket19)
pocket19.Profile = sketch20
pocket19.setExpression("Length", "Params.pocket19_length")

# Sketch on XZ plane
sketch21 = doc.addObject("Sketcher::SketchObject", "Sketch020")
body.addObject(sketch21)
sketch21.AttachmentSupport = (doc.XZ_Plane, [""])
sketch21.MapMode = "FlatFace"
sketch21.AttachmentOffset = App.Placement(V(0, 0, -19), App.Rotation())
sketch21.addGeometry(Part.Circle(V(504, -90, 0), V(0, 0, 1), 60), False)
sketch21.addConstraint([
    Sketcher.Constraint("Diameter", 0, 120.0),
    Sketcher.Constraint("DistanceX", -1, 1, 0, 3, 504.0),
    Sketcher.Constraint("DistanceY", 0, 3, -1, 1, 90.0),
])
sketch21.setExpression("Constraints[0]", "Params.sketch21_diameter")
pocket20 = doc.addObject("PartDesign::Pocket", "Pocket019")
body.addObject(pocket20)
pocket20.Profile = sketch21
pocket20.setExpression("Length", "Params.pocket20_length")

doc.recompute()
